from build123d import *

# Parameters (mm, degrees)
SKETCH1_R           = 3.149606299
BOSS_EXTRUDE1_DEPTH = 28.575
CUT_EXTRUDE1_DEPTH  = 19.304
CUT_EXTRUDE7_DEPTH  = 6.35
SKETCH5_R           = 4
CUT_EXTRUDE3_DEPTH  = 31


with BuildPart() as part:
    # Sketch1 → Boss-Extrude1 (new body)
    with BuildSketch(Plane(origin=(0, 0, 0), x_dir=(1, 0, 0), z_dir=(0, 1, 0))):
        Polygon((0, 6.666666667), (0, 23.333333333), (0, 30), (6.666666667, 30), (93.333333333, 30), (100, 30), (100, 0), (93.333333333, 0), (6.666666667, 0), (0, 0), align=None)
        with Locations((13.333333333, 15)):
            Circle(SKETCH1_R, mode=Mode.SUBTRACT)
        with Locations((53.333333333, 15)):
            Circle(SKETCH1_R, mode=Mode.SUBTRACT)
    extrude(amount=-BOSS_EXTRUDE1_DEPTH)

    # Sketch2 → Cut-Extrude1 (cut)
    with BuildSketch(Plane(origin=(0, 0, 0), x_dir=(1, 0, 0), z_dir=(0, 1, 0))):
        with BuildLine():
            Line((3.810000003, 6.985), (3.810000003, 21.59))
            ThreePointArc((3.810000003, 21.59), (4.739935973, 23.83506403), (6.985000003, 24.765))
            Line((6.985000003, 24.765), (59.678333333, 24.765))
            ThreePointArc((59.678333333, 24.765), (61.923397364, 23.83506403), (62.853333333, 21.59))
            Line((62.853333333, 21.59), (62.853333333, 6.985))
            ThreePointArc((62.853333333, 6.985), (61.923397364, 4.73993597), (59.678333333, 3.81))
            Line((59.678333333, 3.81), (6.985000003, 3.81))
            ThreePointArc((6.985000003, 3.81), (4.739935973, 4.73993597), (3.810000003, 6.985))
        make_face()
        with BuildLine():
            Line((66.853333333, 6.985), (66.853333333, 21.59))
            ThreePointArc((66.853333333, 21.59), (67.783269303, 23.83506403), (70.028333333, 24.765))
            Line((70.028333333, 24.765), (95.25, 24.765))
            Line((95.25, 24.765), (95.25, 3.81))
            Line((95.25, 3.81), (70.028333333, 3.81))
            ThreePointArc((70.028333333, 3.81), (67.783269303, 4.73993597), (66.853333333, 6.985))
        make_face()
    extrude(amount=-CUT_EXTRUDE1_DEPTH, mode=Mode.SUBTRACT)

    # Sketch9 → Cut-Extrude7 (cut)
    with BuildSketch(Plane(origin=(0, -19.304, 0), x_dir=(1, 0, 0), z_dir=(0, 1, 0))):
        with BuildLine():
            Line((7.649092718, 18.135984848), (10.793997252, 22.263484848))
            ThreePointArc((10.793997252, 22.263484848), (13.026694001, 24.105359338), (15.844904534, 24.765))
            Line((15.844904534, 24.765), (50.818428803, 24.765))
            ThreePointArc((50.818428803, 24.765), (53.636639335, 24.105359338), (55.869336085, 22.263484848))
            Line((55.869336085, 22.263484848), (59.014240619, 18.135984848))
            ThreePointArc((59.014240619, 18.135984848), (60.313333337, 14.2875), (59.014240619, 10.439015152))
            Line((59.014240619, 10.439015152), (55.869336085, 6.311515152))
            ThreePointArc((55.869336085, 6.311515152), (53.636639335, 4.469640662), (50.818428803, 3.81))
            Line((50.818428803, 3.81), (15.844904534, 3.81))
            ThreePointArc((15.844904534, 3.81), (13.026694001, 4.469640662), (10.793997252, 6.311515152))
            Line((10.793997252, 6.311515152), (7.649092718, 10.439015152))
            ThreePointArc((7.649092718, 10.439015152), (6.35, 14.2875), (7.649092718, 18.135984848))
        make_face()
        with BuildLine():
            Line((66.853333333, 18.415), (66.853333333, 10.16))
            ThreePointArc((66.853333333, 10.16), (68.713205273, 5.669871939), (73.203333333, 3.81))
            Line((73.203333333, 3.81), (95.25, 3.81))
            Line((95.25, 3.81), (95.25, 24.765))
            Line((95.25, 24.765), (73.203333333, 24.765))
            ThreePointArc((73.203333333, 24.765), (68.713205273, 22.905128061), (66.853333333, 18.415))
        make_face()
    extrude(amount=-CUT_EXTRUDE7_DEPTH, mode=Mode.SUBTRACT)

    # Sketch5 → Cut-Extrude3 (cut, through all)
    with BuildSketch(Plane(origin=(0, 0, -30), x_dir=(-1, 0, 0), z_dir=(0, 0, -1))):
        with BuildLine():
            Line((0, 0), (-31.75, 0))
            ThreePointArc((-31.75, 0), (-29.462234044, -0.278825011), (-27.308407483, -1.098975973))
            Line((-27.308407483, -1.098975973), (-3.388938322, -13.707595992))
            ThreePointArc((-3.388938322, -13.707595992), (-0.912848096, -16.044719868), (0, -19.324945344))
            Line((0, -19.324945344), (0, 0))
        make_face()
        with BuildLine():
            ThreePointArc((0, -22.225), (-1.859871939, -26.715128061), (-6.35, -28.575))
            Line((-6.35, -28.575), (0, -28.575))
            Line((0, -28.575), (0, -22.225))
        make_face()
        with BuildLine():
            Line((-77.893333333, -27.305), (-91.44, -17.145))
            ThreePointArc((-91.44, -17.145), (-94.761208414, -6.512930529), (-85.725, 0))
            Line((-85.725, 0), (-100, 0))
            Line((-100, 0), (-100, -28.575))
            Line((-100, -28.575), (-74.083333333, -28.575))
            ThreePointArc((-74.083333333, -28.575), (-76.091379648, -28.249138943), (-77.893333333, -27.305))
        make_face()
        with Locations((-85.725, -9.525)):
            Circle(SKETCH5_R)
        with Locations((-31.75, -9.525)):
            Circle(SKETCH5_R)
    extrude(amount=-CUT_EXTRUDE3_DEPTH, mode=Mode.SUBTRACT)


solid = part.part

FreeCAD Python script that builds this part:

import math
import FreeCAD as App
import Part
import Sketcher

V = App.Vector
Q = App.Units.Quantity


def add_polygon(sketch, points):
    """Adds a closed chain of lines whose ends are joined by coincident constraints."""
    first, n = sketch.GeometryCount, len(points)
    for a, b in zip(points, points[1:] + points[:1]):
        sketch.addGeometry(Part.LineSegment(App.Vector(*a, 0), App.Vector(*b, 0)), False)
    for i in range(n):
        sketch.addConstraint(Sketcher.Constraint("Coincident", first + i, 2, first + (i + 1) % n, 1))

doc = App.newDocument("Part")
params = doc.addObject("Spreadsheet::Sheet", "Params")
for row, (alias, value) in enumerate([
    ("pad1_length", "1.125 in"),
    ("sketch2_radius", "0.125 in"),
    ("pocket1_length", "0.76 in"),
    ("sketch3_radius", "0.25 in"),
    ("sketch3_height", "0.325 in"),
    ("pocket2_length", "0.25 in"),
    ("sketch4_radius", "0.25 in"),
    ("sketch4_radius2", "0.375 in"),
], start=1):
    params.set(f"A{row}", alias)
    params.set(f"B{row}", "=" + value)
    params.setAlias(f"B{row}", alias)

body = doc.addObject("PartDesign::Body", "Body")

sketch1 = doc.addObject("Sketcher::SketchObject", "Sketch")
body.addObject(sketch1)
sketch1.AttachmentSupport = (doc.XZ_Plane, [""])
sketch1.MapMode = "FlatFace"
add_polygon(sketch1, [(0, -30), (0, 0), (100, 0), (100, -30)])
sketch1.addGeometry(Part.Circle(V(53.3, -15, 0), V(0, 0, 1), 3.1), False)
sketch1.addGeometry(Part.Circle(V(13.3, -15, 0), V(0, 0, 1), 3.1), False)
sketch1.addConstraint(Sketcher.Constraint("Vertical", 0))
sketch1.addConstraint(Sketcher.Constraint("Horizontal", 1))
sketch1.addConstraint(Sketcher.Constraint("Vertical", 2))
sketch1.addConstraint(Sketcher.Constraint("Horizontal", 3))
sketch1.addConstraint(Sketcher.Constraint("Coincident", 0, 2, -1, 1))
sketch1.addConstraint(Sketcher.Constraint("Equal", 4, 5))
sketch1.addConstraint(Sketcher.Constraint("Horizontal", 4, 3, 5, 3))
sketch1.addConstraint(Sketcher.Constraint("Diameter", 4, 6.299213))
sketch1.addConstraint(Sketcher.Constraint("DistanceX", 1, 1, 1, 2, 100.0))
sketch1.addConstraint(Sketcher.Constraint("DistanceY", 0, 1, 0, 2, 30.0))
sketch1.addConstraint(Sketcher.Constraint("DistanceY", 4, 3, -1, 1, 15.0))
sketch1.addConstraint(Sketcher.Constraint("DistanceX", 5, 3, 4, 3, 40.0))
sketch1.addConstraint(Sketcher.Constraint("DistanceX", -1, 1, 4, 3, 53.333333))
pad1 = doc.addObject("PartDesign::Pad", "Pad")
body.addObject(pad1)
pad1.Profile = sketch1
pad1.setExpression("Length", "Params.pad1_length")

sketch2 = doc.addObject("Sketcher::SketchObject", "Sketch001")
body.addObject(sketch2)
sketch2.AttachmentSupport = (doc.XZ_Plane, [""])
sketch2.MapMode = "FlatFace"
sketch2.addGeometry(Part.LineSegment(V(3.8, -21.6, 0), V(3.8, -7, 0)), False)
sketch2.addGeometry(Part.ArcOfCircle(Part.Circle(V(7, -7, 0), V(0, 0, 1), 3.2), math.radians(90), math.radians(180)), False)
sketch2.addGeometry(Part.LineSegment(V(7, -3.8, 0), V(59.7, -3.8, 0)), False)
sketch2.addGeometry(Part.ArcOfCircle(Part.Circle(V(59.7, -7, 0), V(0, 0, 1), 3.2), math.radians(0), math.radians(90)), False)
sketch2.addGeometry(Part.LineSegment(V(62.9, -7, 0), V(62.9, -21.6, 0)), False)
sketch2.addGeometry(Part.ArcOfCircle(Part.Circle(V(59.7, -21.6, 0), V(0, 0, 1), 3.2), math.radians(-90), math.radians(0)), False)
sketch2.addGeometry(Part.LineSegment(V(59.7, -24.8, 0), V(7, -24.8, 0)), False)
sketch2.addGeometry(Part.ArcOfCircle(Part.Circle(V(7, -21.6, 0), V(0, 0, 1), 3.2), math.radians(-180), math.radians(-90)), False)
sketch2.addGeometry(Part.LineSegment(V(66.9, -21.6, 0), V(66.9, -7, 0)), False)
sketch2.addGeometry(Part.ArcOfCircle(Part.Circle(V(70, -7, 0), V(0, 0, 1), 3.2), math.radians(90), math.radians(180)), False)
sketch2.addGeometry(Part.LineSegment(V(70, -3.8, 0), V(95.2, -3.8, 0)), False)
sketch2.addGeometry(Part.LineSegment(V(95.2, -3.8, 0), V(95.2, -24.8, 0)), False)
sketch2.addGeometry(Part.LineSegment(V(95.2, -24.8, 0), V(70, -24.8, 0)), False)
sketch2.addGeometry(Part.ArcOfCircle(Part.Circle(V(70, -21.6, 0), V(0, 0, 1), 3.2), math.radians(-180), math.radians(-90)), False)
sketch2.addConstraint(Sketcher.Constraint("Tangent", 0, 2, 1, 2))
sketch2.addConstraint(Sketcher.Constraint("Tangent", 1, 1, 2, 1))
sketch2.addConstraint(Sketcher.Constraint("Tangent", 2, 2, 3, 2))
sketch2.addConstraint(Sketcher.Constraint("Tangent", 3, 1, 4, 1))
sketch2.addConstraint(Sketcher.Constraint("Tangent", 4, 2, 5, 2))
sketch2.addConstraint(Sketcher.Constraint("Tangent", 5, 1, 6, 1))
sketch2.addConstraint(Sketcher.Constraint("Tangent", 6, 2, 7, 2))
sketch2.addConstraint(Sketcher.Constraint("Tangent", 7, 1, 0, 1))
sketch2.addConstraint(Sketcher.Constraint("Tangent", 8, 2, 9, 2))
sketch2.addConstraint(Sketcher.Constraint("Tangent", 9, 1, 10, 1))
sketch2.addConstraint(Sketcher.Constraint("Coincident", 10, 2, 11, 1))
sketch2.addConstraint(Sketcher.Constraint("Coincident", 11, 2, 12, 1))
sketch2.addConstraint(Sketcher.Constraint("Tangent", 12, 2, 13, 2))
sketch2.addConstraint(Sketcher.Constraint("Tangent", 13, 1, 8, 1))
sketch2.addConstraint(Sketcher.Constraint("Vertical", 0))
sketch2.addConstraint(Sketcher.Constraint("Horizontal", 2))
sketch2.addConstraint(Sketcher.Constraint("Vertical", 4))
sketch2.addConstraint(Sketcher.Constraint("Horizontal", 6))
sketch2.addConstraint(Sketcher.Constraint("Vertical", 8))
sketch2.addConstraint(Sketcher.Constraint("Horizontal", 10))
sketch2.addConstraint(Sketcher.Constraint("Vertical", 11))
sketch2.addConstraint(Sketcher.Constraint("Horizontal", 12))
sketch2.addConstraint(Sketcher.Constraint("Equal", 1, 3))
sketch2.addConstraint(Sketcher.Constraint("Equal", 3, 5))
sketch2.addConstraint(Sketcher.Constraint("Equal", 5, 7))
sketch2.addConstraint(Sketcher.Constraint("Equal", 7, 9))
sketch2.addConstraint(Sketcher.Constraint("Equal", 9, 13))
sketch2.addConstraint(Sketcher.Constraint("Horizontal", 3, 3, 9, 3))
sketch2.addConstraint(Sketcher.Constraint("Horizontal", 7, 3, 13, 3))
sketch2.addConstraint(Sketcher.Constraint("Radius", 1, Q("0.125 in")))
sketch2.addConstraint(Sketcher.Constraint("DistanceY", 7, 3, 1, 1, Q("0.7 in")))
sketch2.addConstraint(Sketcher.Constraint("DistanceY", 5, 3, -1, 1, Q("0.85 in")))
sketch2.addConstraint(Sketcher.Constraint("DistanceX", -1, 1, 0, 2, Q("0.15 in")))
sketch2.addConstraint(Sketcher.Constraint("DistanceX", -1, 1, 10, 2, Q("3.75 in")))
sketch2.addConstraint(Sketcher.Constraint("DistanceX", 3, 3, 9, 3, 10.35))
sketch2.addConstraint(Sketcher.Constraint("DistanceX", 2, 1, 2, 2, 52.693333))
sketch2.setExpression("Constraints[29]", "Params.sketch2_radius")
pocket1 = doc.addObject("PartDesign::Pocket", "Pocket")
body.addObject(pocket1)
pocket1.Profile = sketch2
pocket1.setExpression("Length", "Params.pocket1_length")
pocket1.Reversed = True

sketch3 = doc.addObject("Sketcher::SketchObject", "Sketch002")
body.addObject(sketch3)
sketch3.AttachmentSupport = (doc.XZ_Plane, [""])
sketch3.MapMode = "FlatFace"
sketch3.AttachmentOffset = App.Placement(V(0, 0, 0.76 * 25.4), App.Rotation())
sketch3.addGeometry(Part.LineSegment(V(11, -22, 0), V(8, -18, 0)), False)
sketch3.addGeometry(Part.ArcOfCircle(Part.Circle(V(13, -14, 0), V(0, 0, 1), 6), math.radians(143), math.radians(217)), False)
sketch3.addGeometry(Part.LineSegment(V(8, -10, 0), V(11, -6, 0)), False)
sketch3.addGeometry(Part.ArcOfCircle(Part.Circle(V(16, -10, 0), V(0, 0, 1), 6), math.radians(90), math.radians(143)), False)
sketch3.addGeometry(Part.LineSegment(V(16, -4, 0), V(51, -4, 0)), False)
sketch3.addGeometry(Part.ArcOfCircle(Part.Circle(V(51, -10, 0), V(0, 0, 1), 6), math.radians(37), math.radians(90)), False)
sketch3.addGeometry(Part.LineSegment(V(56, -6, 0), V(59, -10, 0)), False)
sketch3.addGeometry(Part.ArcOfCircle(Part.Circle(V(54, -14, 0), V(0, 0, 1), 6), math.radians(-37), math.radians(37)), False)
sketch3.addGeometry(Part.LineSegment(V(59, -18, 0), V(56, -22, 0)), False)
sketch3.addGeometry(Part.ArcOfCircle(Part.Circle(V(51, -18, 0), V(0, 0, 1), 6), math.radians(-90), math.radians(-37)), False)
sketch3.addGeometry(Part.LineSegment(V(51, -25, 0), V(16, -25, 0)), False)
sketch3.addGeometry(Part.ArcOfCircle(Part.Circle(V(16, -18, 0), V(0, 0, 1), 6), math.radians(-143), math.radians(-90)), False)
sketch3.addGeometry(Part.LineSegment(V(67, -18, 0), V(67, -10, 0)), False)
sketch3.addGeometry(Part.ArcOfCircle(Part.Circle(V(73, -10, 0), V(0, 0, 1), 6), math.radians(90), math.radians(180)), False)
sketch3.addGeometry(Part.LineSegment(V(73, -4, 0), V(95, -4, 0)), False)
sketch3.addGeometry(Part.LineSegment(V(95, -4, 0), V(95, -25, 0)), False)
sketch3.addGeometry(Part.LineSegment(V(95, -25, 0), V(73, -25, 0)), False)
sketch3.addGeometry(Part.ArcOfCircle(Part.Circle(V(73, -18, 0), V(0, 0, 1), 6), math.radians(180), math.radians(270)), False)
sketch3.addConstraint(Sketcher.Constraint("Tangent", 0, 2, 1, 2))
sketch3.addConstraint(Sketcher.Constraint("Tangent", 1, 1, 2, 1))
sketch3.addConstraint(Sketcher.Constraint("Tangent", 2, 2, 3, 2))
sketch3.addConstraint(Sketcher.Constraint("Tangent", 3, 1, 4, 1))
sketch3.addConstraint(Sketcher.Constraint("Tangent", 4, 2, 5, 2))
sketch3.addConstraint(Sketcher.Constraint("Tangent", 5, 1, 6, 1))
sketch3.addConstraint(Sketcher.Constraint("Tangent", 6, 2, 7, 2))
sketch3.addConstraint(Sketcher.Constraint("Tangent", 7, 1, 8, 1))
sketch3.addConstraint(Sketcher.Constraint("Tangent", 8, 2, 9, 2))
sketch3.addConstraint(Sketcher.Constraint("Tangent", 9, 1, 10, 1))
sketch3.addConstraint(Sketcher.Constraint("Tangent", 10, 2, 11, 2))
sketch3.addConstraint(Sketcher.Constraint("Tangent", 11, 1, 0, 1))
sketch3.addConstraint(Sketcher.Constraint("Tangent", 12, 2, 13, 2))
sketch3.addConstraint(Sketcher.Constraint("Tangent", 13, 1, 14, 1))
sketch3.addConstraint(Sketcher.Constraint("Coincident", 14, 2, 15, 1))
sketch3.addConstraint(Sketcher.Constraint("Coincident", 15, 2, 16, 1))
sketch3.addConstraint(Sketcher.Constraint("Tangent", 16, 2, 17, 2))
sketch3.addConstraint(Sketcher.Constraint("Tangent", 17, 1, 12, 1))
sketch3.addConstraint(Sketcher.Constraint("Horizontal", 4))
sketch3.addConstraint(Sketcher.Constraint("Horizontal", 10))
sketch3.addConstraint(Sketcher.Constraint("Vertical", 12))
sketch3.addConstraint(Sketcher.Constraint("Horizontal", 14))
sketch3.addConstraint(Sketcher.Constraint("Vertical", 15))
sketch3.addConstraint(Sketcher.Constraint("Horizontal", 16))
sketch3.addConstraint(Sketcher.Constraint("Equal", 1, 3))
sketch3.addConstraint(Sketcher.Constraint("Equal", 3, 5))
sketch3.addConstraint(Sketcher.Constraint("Equal", 5, 7))
sketch3.addConstraint(Sketcher.Constraint("Equal", 7, 9))
sketch3.addConstraint(Sketcher.Constraint("Equal", 9, 11))
sketch3.addConstraint(Sketcher.Constraint("Equal", 11, 13))
sketch3.addConstraint(Sketcher.Constraint("Equal", 13, 17))
sketch3.addConstraint(Sketcher.Constraint("Parallel", 0, 6))
sketch3.addConstraint(Sketcher.Constraint("Parallel", 2, 8))
sketch3.addConstraint(Sketcher.Constraint("Horizontal", 1, 3, 7, 3))
sketch3.addConstraint(Sketcher.Constraint("Horizontal", 5, 3, 13, 3))
sketch3.addConstraint(Sketcher.Constraint("Horizontal", 11, 3, 17, 3))
sketch3.addConstraint(Sketcher.Constraint("Horizontal", 2, 2, 5, 1))
sketch3.addConstraint(Sketcher.Constraint("Vertical", 5, 3, 9, 3))
sketch3.addConstraint(Sketcher.Constraint("Radius", 1, Q("0.25 in")))
sketch3.addConstraint(Sketcher.Constraint("DistanceX", -1, 1, 1, 3, Q("0.5 in")))
sketch3.addConstraint(Sketcher.Constraint("DistanceY", 3, 3, -1, 1, Q("0.4 in")))
sketch3.addConstraint(Sketcher.Constraint("DistanceY", 12, 1, 12, 2, Q("0.325 in")))
sketch3.addConstraint(Sketcher.Constraint("DistanceX", -1, 1, 14, 2, Q("3.75 in")))
sketch3.addConstraint(Sketcher.Constraint("DistanceX", 7, 3, 13, 3, 19.24))
sketch3.addConstraint(Sketcher.Constraint("DistanceX", 4, 1, 4, 2, 34.973524))
sketch3.addConstraint(Sketcher.Constraint("DistanceX", 14, 1, 14, 2, 22.046667))
sketch3.setExpression("Constraints[38]", "Params.sketch3_radius")
sketch3.setExpression("Constraints[41]", "Params.sketch3_height")
pocket2 = doc.addObject("PartDesign::Pocket", "Pocket001")
body.addObject(pocket2)
pocket2.Profile = sketch3
pocket2.setExpression("Length", "Params.pocket2_length")
pocket2.Reversed = True

sketch4 = doc.addObject("Sketcher::SketchObject", "Sketch003")
body.addObject(sketch4)
sketch4.AttachmentSupport = (doc.XY_Plane, [""])
sketch4.MapMode = "FlatFace"
sketch4.AttachmentOffset = App.Placement(V(0, 0, -30), App.Rotation())
sketch4.addGeometry(Part.LineSegment(V(0, 0, 0), V(31.8, 0, 0)), False)
sketch4.addGeometry(Part.ArcOfCircle(Part.Circle(V(31.8, -9.5, 0), V(0, 0, 1), 9.5), math.radians(90), math.radians(118)), False)
sketch4.addGeometry(Part.LineSegment(V(27.3, -1.1, 0), V(3.4, -13.7, 0)), False)
sketch4.addGeometry(Part.ArcOfCircle(Part.Circle(V(6.4, -19.3, 0), V(0, 0, 1), 6.4), math.radians(118), math.radians(180)), False)
sketch4.addGeometry(Part.LineSegment(V(0, -19.3, 0), V(0, 0, 0)), False)
sketch4.addGeometry(Part.ArcOfCircle(Part.Circle(V(6.3, -22.2, 0), V(0, 0, 1), 6.3), math.radians(180), math.radians(270)), False)
sketch4.addGeometry(Part.LineSegment(V(6.3, -28.6, 0), V(0, -28.6, 0)), False)
sketch4.addGeometry(Part.LineSegment(V(0, -28.6, 0), V(0, -22.2, 0)), False)
sketch4.addGeometry(Part.LineSegment(V(77.9, -27.3, 0), V(91.4, -17.1, 0)), False)
sketch4.addGeometry(Part.ArcOfCircle(Part.Circle(V(85.7, -9.5, 0), V(0, 0, 1), 9.5), math.radians(-53), math.radians(90)), False)
sketch4.addGeometry(Part.LineSegment(V(85.7, 0, 0), V(100, 0, 0)), False)
sketch4.addGeometry(Part.LineSegment(V(100, 0, 0), V(100, -28.6, 0)), False)
sketch4.addGeometry(Part.LineSegment(V(100, -28.6, 0), V(74.1, -28.6, 0)), False)
sketch4.addGeometry(Part.ArcOfCircle(Part.Circle(V(74.1, -22.2, 0), V(0, 0, 1), 6.3), math.radians(-90), math.radians(-53)), False)
sketch4.addGeometry(Part.Circle(V(85.7, -9.5, 0), V(0, 0, 1), 4), False)
sketch4.addGeometry(Part.Circle(V(31.8, -9.5, 0), V(0, 0, 1), 4), False)
sketch4.addConstraint(Sketcher.Constraint("Tangent", 0, 2, 1, 1))
sketch4.addConstraint(Sketcher.Constraint("Tangent", 1, 2, 2, 1))
sketch4.addConstraint(Sketcher.Constraint("Tangent", 2, 2, 3, 1))
sketch4.addConstraint(Sketcher.Constraint("Tangent", 3, 2, 4, 1))
sketch4.addConstraint(Sketcher.Constraint("Coincident", 4, 2, 0, 1))
sketch4.addConstraint(Sketcher.Constraint("Tangent", 5, 2, 6, 1))
sketch4.addConstraint(Sketcher.Constraint("Coincident", 6, 2, 7, 1))
sketch4.addConstraint(Sketcher.Constraint("Tangent", 7, 2, 5, 1))
sketch4.addConstraint(Sketcher.Constraint("Tangent", 8, 2, 9, 1))
sketch4.addConstraint(Sketcher.Constraint("Tangent", 9, 2, 10, 1))
sketch4.addConstraint(Sketcher.Constraint("Coincident", 10, 2, 11, 1))
sketch4.addConstraint(Sketcher.Constraint("Coincident", 11, 2, 12, 1))
sketch4.addConstraint(Sketcher.Constraint("Tangent", 12, 2, 13, 1))
sketch4.addConstraint(Sketcher.Constraint("Tangent", 13, 2, 8, 1))
sketch4.addConstraint(Sketcher.Constraint("Horizontal", 0))
sketch4.addConstraint(Sketcher.Constraint("Vertical", 4))
sketch4.addConstraint(Sketcher.Constraint("Horizontal", 6))
sketch4.addConstraint(Sketcher.Constraint("Vertical", 7))
sketch4.addConstraint(Sketcher.Constraint("Horizontal", 10))
sketch4.addConstraint(Sketcher.Constraint("Vertical", 11))
sketch4.addConstraint(Sketcher.Constraint("Horizontal", 12))
sketch4.addConstraint(Sketcher.Constraint("Coincident", 4, 2, -1, 1))
sketch4.addConstraint(Sketcher.Constraint("Coincident", 14, 3, 9, 3))
sketch4.addConstraint(Sketcher.Constraint("Coincident", 15, 3, 1, 3))
sketch4.addConstraint(Sketcher.Constraint("Equal", 3, 5))
sketch4.addConstraint(Sketcher.Constraint("Equal", 1, 9))
sketch4.addConstraint(Sketcher.Constraint("Equal", 5, 13))
sketch4.addConstraint(Sketcher.Constraint("Equal", 14, 15))
sketch4.addConstraint(Sketcher.Constraint("PointOnObject", 6, 2, -2))
sketch4.addConstraint(Sketcher.Constraint("PointOnObject", 9, 2, -1))
sketch4.addConstraint(Sketcher.Constraint("Horizontal", 5, 3, 13, 3))
sketch4.addConstraint(Sketcher.Constraint("Radius", 3, Q("0.25 in")))
sketch4.addConstraint(Sketcher.Constraint("Radius", 1, Q("0.375 in")))
sketch4.addConstraint(Sketcher.Constraint("DistanceX", 3, 3, 1, 3, Q("1 in")))
sketch4.addConstraint(Sketcher.Constraint("DistanceX", -1, 1, 8, 2, Q("3.6 in")))
sketch4.addConstraint(Sketcher.Constraint("DistanceY", 5, 3, 1, 3, Q("0.5 in")))
sketch4.addConstraint(Sketcher.Constraint("DistanceY", 8, 2, 9, 3, Q("0.3 in")))
sketch4.addConstraint(Sketcher.Constraint("Diameter", 14, 8.0))
sketch4.addConstraint(Sketcher.Constraint("DistanceX", 10, 1, 10, 2, 14.275))
sketch4.addConstraint(Sketcher.Constraint("Distance", 2, 27.039199))
sketch4.setExpression("Constraints[31]", "Params.sketch4_radius")
sketch4.setExpression("Constraints[32]", "Params.sketch4_radius2")
pocket3 = doc.addObject("PartDesign::Pocket", "Pocket002")
body.addObject(pocket3)
pocket3.Profile = sketch4
pocket3.Type = "ThroughAll"
pocket3.Reversed = True

doc.recompute()
